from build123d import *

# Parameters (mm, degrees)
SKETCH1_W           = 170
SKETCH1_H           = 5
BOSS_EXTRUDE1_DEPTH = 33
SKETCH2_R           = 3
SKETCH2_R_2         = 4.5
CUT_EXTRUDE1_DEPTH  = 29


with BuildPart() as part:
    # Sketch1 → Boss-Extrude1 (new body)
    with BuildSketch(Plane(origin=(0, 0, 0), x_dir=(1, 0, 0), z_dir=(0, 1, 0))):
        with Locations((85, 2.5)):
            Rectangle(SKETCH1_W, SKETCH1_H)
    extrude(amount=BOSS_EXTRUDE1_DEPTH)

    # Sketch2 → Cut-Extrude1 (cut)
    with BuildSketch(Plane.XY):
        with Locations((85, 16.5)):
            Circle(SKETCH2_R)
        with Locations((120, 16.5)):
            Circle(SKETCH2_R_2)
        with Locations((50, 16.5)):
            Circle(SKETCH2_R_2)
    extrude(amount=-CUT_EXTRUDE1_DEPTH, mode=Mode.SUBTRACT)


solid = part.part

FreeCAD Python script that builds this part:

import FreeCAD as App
import Part
import Sketcher
from FreeCAD import Vector
Q = App.Units.Quantity

doc = App.newDocument("Part")
body = doc.addObject("PartDesign::Body", "Body")

sketch1 = body.newObject("Sketcher::SketchObject", "Sketch")
sketch1.AttachmentSupport = (doc.getObject("XZ_Plane"), [""])
sketch1.MapMode = "FlatFace"
sketch1.addGeometry([
    Part.LineSegment(Vector(0, -5, 0), Vector(0, 0, 0)),
    Part.LineSegment(Vector(0, 0, 0), Vector(170, 0, 0)),
    Part.LineSegment(Vector(170, 0, 0), Vector(170, -5, 0)),
    Part.LineSegment(Vector(170, -5, 0), Vector(0, -5, 0)),
], False)
sketch1.addConstraint([
    Sketcher.Constraint("Coincident", 0, 2, 1, 1),
    Sketcher.Constraint("Coincident", 1, 2, 2, 1),
    Sketcher.Constraint("Coincident", 2, 2, 3, 1),
    Sketcher.Constraint("Coincident", 3, 2, 0, 1),
    Sketcher.Constraint("Vertical", 0),
    Sketcher.Constraint("Horizontal", 1),
    Sketcher.Constraint("Vertical", 2),
    Sketcher.Constraint("Horizontal", 3),
    Sketcher.Constraint("Coincident", 0, 2, -1, 1),
    Sketcher.Constraint("DistanceX", 1, 1, 1, 2, Q("170 mm")),
    Sketcher.Constraint("DistanceY", 0, 1, 0, 2, Q("5 mm")),
])
pad1 = body.newObject("PartDesign::Pad", "Pad")
pad1.Profile = sketch1
pad1.Length = 33
pad1.Reversed = True

sketch2 = body.newObject("Sketcher::SketchObject", "Sketch001")
sketch2.AttachmentSupport = (doc.getObject("XY_Plane"), [""])
sketch2.MapMode = "FlatFace"
sketch2.addGeometry([
    Part.Circle(Vector(85, 16.5, 0), Vector(0, 0, 1), 3),
    Part.Circle(Vector(120, 16.5, 0), Vector(0, 0, 1), 4.5),
    Part.Circle(Vector(50, 16.5, 0), Vector(0, 0, 1), 4.5),
], False)
sketch2.addConstraint([
    Sketcher.Constraint("Equal", 1, 2),
    Sketcher.Constraint("Horizontal", 0, 3, 1, 3),
    Sketcher.Constraint("Horizontal", 1, 3, 2, 3),
    Sketcher.Constraint("Diameter", 0, Q("6 mm")),
    Sketcher.Constraint("Diameter", 1, Q("9 mm")),
    Sketcher.Constraint("DistanceX", -1, 1, 0, 3, Q("85 mm")),
    Sketcher.Constraint("DistanceX", -1, 1, 1, 3, Q("120 mm")),
    Sketcher.Constraint("DistanceX", -1, 1, 2, 3, Q("50 mm")),
    Sketcher.Constraint("DistanceY", -1, 1, 0, 3, Q("16.5 mm")),
])
pocket1 = body.newObject("PartDesign::Pocket", "Pocket")
pocket1.Profile = sketch2
pocket1.Length = 29

doc.recompute()
